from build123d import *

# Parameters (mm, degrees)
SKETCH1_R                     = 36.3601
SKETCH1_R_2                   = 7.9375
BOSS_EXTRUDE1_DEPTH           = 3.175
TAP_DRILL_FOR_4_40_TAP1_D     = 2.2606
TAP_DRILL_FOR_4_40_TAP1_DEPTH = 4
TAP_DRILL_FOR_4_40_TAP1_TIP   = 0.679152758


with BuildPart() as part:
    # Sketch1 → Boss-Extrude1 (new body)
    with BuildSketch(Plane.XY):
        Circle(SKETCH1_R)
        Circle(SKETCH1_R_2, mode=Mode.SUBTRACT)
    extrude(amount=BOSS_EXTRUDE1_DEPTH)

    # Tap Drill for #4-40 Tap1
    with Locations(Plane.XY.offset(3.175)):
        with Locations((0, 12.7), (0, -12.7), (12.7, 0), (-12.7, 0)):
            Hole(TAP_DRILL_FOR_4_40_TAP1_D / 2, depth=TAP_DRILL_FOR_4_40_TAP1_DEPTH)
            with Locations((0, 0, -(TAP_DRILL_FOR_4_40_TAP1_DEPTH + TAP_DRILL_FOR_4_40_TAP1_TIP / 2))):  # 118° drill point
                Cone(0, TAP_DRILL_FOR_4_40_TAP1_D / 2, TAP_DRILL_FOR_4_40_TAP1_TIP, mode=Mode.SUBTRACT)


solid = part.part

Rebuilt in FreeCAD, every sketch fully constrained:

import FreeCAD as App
import Part
import Sketcher
from FreeCAD import Vector
Q = App.Units.Quantity

doc = App.newDocument("Part")
body = doc.addObject("PartDesign::Body", "Body")

# Sketch on XY plane
sketch1 = doc.addObject("Sketcher::SketchObject", "Sketch")
body.addObject(sketch1)
sketch1.AttachmentSupport = (doc.XY_Plane, [""])
sketch1.MapMode = "FlatFace"
sketch1.addGeometry(Part.Circle(Vector(0, 0, 0), Vector(0, 0, 1), 36.3601), False)
sketch1.addGeometry(Part.Circle(Vector(0, 0, 0), Vector(0, 0, 1), 7.9375), False)
sketch1.addConstraint(Sketcher.Constraint("Coincident", 0, 3, -1, 1))
sketch1.addConstraint(Sketcher.Constraint("Coincident", 1, 3, -1, 1))
sketch1.addConstraint(Sketcher.Constraint("Diameter", 0, Q("2.863 in")))
sketch1.addConstraint(Sketcher.Constraint("Diameter", 1, Q("0.625 in")))
pad1 = doc.addObject("PartDesign::Pad", "Pad")
body.addObject(pad1)
pad1.Profile = sketch1
pad1.Length = Q("0.125 in")

# Sketch on XY plane
sketch2 = doc.addObject("Sketcher::SketchObject", "Sketch001")
body.addObject(sketch2)
sketch2.AttachmentSupport = (doc.XY_Plane, [""])
sketch2.MapMode = "FlatFace"
sketch2.AttachmentOffset = App.Placement(Vector(0, 0, 0.125 * 25.4), App.Rotation())
sketch2.addGeometry(Part.Circle(Vector(0, 12.7, 0), Vector(0, 0, 1), 1.1303), False)
sketch2.addGeometry(Part.Circle(Vector(0, -12.7, 0), Vector(0, 0, 1), 1.1303), False)
sketch2.addGeometry(Part.Circle(Vector(12.7, 0, 0), Vector(0, 0, 1), 1.1303), False)
sketch2.addGeometry(Part.Circle(Vector(-12.7, 0, 0), Vector(0, 0, 1), 1.1303), False)
sketch2.addConstraint(Sketcher.Constraint("Equal", 0, 1))
sketch2.addConstraint(Sketcher.Constraint("Equal", 1, 2))
sketch2.addConstraint(Sketcher.Constraint("Equal", 2, 3))
sketch2.addConstraint(Sketcher.Constraint("Symmetric", 0, 3, 1, 3, -1, 1))
sketch2.addConstraint(Sketcher.Constraint("Symmetric", 2, 3, 3, 3, -1, 1))
sketch2.addConstraint(Sketcher.Constraint("PointOnObject", 0, 3, -2))
sketch2.addConstraint(Sketcher.Constraint("PointOnObject", 2, 3, -1))
sketch2.addConstraint(Sketcher.Constraint("Diameter", 0, Q("0.089 in")))
sketch2.addConstraint(Sketcher.Constraint("DistanceY", 1, 3, 0, 3, Q("1 in")))
sketch2.addConstraint(Sketcher.Constraint("DistanceX", 3, 3, 2, 3, Q("1 in")))
doc.recompute()
hole = doc.addObject("PartDesign::Hole", "Hole")
body.addObject(hole)
hole.Profile = sketch2
hole.ThreadType = "None"
hole.Diameter = Q("0.089 in")
hole.DepthType = "Dimension"
hole.Depth = 4
hole.DrillPoint = "Angled"
hole.DrillPointAngle = 118

doc.recompute()
